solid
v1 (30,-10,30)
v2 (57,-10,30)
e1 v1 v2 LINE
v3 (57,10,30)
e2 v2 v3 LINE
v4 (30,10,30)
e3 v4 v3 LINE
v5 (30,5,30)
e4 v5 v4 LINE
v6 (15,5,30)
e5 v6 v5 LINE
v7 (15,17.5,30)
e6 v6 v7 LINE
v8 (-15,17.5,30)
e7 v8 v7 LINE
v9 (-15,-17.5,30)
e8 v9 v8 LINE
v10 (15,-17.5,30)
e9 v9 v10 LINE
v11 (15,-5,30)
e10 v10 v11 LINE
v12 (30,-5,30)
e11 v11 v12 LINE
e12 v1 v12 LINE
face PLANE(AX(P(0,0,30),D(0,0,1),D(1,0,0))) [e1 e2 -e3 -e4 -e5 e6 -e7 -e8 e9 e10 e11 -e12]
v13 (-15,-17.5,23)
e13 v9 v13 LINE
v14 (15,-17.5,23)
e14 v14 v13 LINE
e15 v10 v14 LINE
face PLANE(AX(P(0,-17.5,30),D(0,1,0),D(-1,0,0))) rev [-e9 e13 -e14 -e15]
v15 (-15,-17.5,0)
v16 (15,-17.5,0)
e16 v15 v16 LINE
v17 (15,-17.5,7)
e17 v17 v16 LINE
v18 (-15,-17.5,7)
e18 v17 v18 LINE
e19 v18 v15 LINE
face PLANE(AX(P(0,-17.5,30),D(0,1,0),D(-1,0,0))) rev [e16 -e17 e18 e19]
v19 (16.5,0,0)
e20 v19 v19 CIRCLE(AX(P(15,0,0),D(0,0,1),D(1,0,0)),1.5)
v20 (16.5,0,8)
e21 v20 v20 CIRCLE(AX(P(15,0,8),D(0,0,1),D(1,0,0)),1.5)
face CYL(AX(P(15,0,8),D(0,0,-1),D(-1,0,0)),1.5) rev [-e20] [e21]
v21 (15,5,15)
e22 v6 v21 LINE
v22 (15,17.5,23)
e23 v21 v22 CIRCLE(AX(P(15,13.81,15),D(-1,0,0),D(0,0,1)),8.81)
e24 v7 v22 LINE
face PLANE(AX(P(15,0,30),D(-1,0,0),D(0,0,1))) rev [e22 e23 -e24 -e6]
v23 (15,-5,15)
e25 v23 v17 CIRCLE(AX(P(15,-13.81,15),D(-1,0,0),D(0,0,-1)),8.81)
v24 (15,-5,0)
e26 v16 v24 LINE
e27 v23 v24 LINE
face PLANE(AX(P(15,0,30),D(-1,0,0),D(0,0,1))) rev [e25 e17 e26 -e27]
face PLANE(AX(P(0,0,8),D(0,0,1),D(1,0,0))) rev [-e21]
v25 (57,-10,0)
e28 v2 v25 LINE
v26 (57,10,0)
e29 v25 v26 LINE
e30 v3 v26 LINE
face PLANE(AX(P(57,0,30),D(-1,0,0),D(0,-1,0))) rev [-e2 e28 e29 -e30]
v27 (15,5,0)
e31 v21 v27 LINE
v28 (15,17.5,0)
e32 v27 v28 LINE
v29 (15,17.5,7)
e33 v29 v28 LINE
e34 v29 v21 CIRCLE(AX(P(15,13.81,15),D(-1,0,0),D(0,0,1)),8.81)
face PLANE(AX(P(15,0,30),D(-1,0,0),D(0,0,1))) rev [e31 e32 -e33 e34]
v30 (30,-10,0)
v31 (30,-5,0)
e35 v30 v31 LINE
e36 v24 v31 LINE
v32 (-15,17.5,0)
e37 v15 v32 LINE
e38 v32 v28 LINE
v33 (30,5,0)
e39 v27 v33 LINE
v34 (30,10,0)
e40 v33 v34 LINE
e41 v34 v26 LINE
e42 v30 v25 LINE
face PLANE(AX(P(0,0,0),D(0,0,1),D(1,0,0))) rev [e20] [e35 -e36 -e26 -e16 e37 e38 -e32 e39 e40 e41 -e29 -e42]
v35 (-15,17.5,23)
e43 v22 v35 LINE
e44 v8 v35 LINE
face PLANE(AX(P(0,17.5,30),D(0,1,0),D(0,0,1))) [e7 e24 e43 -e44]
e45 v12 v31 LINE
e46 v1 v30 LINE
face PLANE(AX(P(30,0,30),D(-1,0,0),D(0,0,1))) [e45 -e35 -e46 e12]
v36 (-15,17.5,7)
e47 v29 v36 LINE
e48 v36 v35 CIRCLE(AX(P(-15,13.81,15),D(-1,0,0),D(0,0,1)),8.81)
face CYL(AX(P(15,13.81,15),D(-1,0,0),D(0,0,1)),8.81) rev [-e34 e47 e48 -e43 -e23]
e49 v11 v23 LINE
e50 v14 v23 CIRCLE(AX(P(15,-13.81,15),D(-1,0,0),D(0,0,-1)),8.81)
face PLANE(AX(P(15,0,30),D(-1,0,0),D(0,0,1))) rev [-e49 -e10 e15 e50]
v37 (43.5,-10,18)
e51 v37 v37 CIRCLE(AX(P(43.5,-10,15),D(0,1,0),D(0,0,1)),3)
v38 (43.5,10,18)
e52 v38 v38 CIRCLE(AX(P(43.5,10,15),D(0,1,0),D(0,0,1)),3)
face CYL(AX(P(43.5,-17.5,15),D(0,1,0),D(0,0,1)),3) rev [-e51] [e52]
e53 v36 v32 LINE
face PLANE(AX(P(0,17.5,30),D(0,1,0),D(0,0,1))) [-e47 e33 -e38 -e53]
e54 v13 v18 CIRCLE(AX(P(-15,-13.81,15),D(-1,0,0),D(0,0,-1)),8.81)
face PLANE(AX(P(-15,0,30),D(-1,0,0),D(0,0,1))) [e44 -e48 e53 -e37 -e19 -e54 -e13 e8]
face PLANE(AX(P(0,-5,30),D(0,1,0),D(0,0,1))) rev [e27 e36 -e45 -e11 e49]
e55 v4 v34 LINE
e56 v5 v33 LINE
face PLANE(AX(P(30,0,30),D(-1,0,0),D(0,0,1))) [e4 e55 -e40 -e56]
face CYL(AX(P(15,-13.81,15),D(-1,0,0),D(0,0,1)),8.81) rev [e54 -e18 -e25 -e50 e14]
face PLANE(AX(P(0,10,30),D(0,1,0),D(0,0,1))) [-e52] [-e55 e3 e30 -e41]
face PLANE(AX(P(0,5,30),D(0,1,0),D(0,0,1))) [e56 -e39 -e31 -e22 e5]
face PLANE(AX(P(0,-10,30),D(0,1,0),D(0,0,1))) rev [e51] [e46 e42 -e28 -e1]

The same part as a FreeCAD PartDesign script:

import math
import FreeCAD as App
import Part
import Sketcher


def add_polygon(sketch, points):
    """Adds a closed chain of lines whose ends are joined by coincident constraints."""
    first, n = sketch.GeometryCount, len(points)
    for a, b in zip(points, points[1:] + points[:1]):
        sketch.addGeometry(Part.LineSegment(App.Vector(*a, 0), App.Vector(*b, 0)), False)
    for i in range(n):
        sketch.addConstraint(Sketcher.Constraint("Coincident", first + i, 2, first + (i + 1) % n, 1))

doc = App.newDocument("Part")
body = doc.addObject("PartDesign::Body", "Body")

sketch1 = doc.addObject("Sketcher::SketchObject", "Sketch")
body.addObject(sketch1)
sketch1.AttachmentSupport = (doc.XY_Plane, [""])
sketch1.MapMode = "FlatFace"
add_polygon(sketch1, [(-15, 17.5), (-15, -17.5), (15, -17.5), (15, -5), (30, -5), (30, -10), (57, -10), (57, 10), (30, 10), (30, 5), (15, 5), (15, 17.5)])
sketch1.addConstraint(Sketcher.Constraint("Vertical", 0))
sketch1.addConstraint(Sketcher.Constraint("Horizontal", 1))
sketch1.addConstraint(Sketcher.Constraint("Vertical", 2))
sketch1.addConstraint(Sketcher.Constraint("Horizontal", 3))
sketch1.addConstraint(Sketcher.Constraint("Vertical", 4))
sketch1.addConstraint(Sketcher.Constraint("Horizontal", 5))
sketch1.addConstraint(Sketcher.Constraint("Vertical", 6))
sketch1.addConstraint(Sketcher.Constraint("Horizontal", 7))
sketch1.addConstraint(Sketcher.Constraint("Vertical", 8))
sketch1.addConstraint(Sketcher.Constraint("Horizontal", 9))
sketch1.addConstraint(Sketcher.Constraint("Vertical", 10))
sketch1.addConstraint(Sketcher.Constraint("Horizontal", 11))
sketch1.addConstraint(Sketcher.Constraint("Symmetric", 0, 2, 10, 2, -1, 1))
sketch1.addConstraint(Sketcher.Constraint("Symmetric", 4, 2, 7, 2, -1))
sketch1.addConstraint(Sketcher.Constraint("Symmetric", 2, 2, 9, 2, -1))
sketch1.addConstraint(Sketcher.Constraint("DistanceX", 1, 1, 1, 2, 30.0))
sketch1.addConstraint(Sketcher.Constraint("DistanceX", 3, 1, 3, 2, 15.0))
sketch1.addConstraint(Sketcher.Constraint("DistanceX", 5, 1, 5, 2, 27.0))
sketch1.addConstraint(Sketcher.Constraint("DistanceY", 0, 2, 0, 1, 35.0))
sketch1.addConstraint(Sketcher.Constraint("DistanceY", 4, 2, 4, 1, 5.0))
sketch1.addConstraint(Sketcher.Constraint("DistanceY", 6, 1, 6, 2, 20.0))
pad1 = doc.addObject("PartDesign::Pad", "Pad")
body.addObject(pad1)
pad1.Profile = sketch1
pad1.Length = 30

sketch2 = doc.addObject("Sketcher::SketchObject", "Sketch001")
body.addObject(sketch2)
sketch2.AttachmentSupport = (doc.XY_Plane, [""])
sketch2.MapMode = "FlatFace"
sketch2.addGeometry(Part.ArcOfCircle(Part.Circle(App.Vector(15, 0, 0), App.Vector(0, 0, 1), 1.5), math.radians(90), math.radians(270)), False)
sketch2.addGeometry(Part.ArcOfCircle(Part.Circle(App.Vector(15, 0, 0), App.Vector(0, 0, 1), 1.5), math.radians(-90), math.radians(0)), False)
sketch2.addGeometry(Part.ArcOfCircle(Part.Circle(App.Vector(15, 0, 0), App.Vector(0, 0, 1), 1.5), math.radians(0), math.radians(90)), False)
sketch2.addConstraint(Sketcher.Constraint("Tangent", 0, 2, 1, 1))
sketch2.addConstraint(Sketcher.Constraint("Tangent", 1, 2, 2, 1))
sketch2.addConstraint(Sketcher.Constraint("Tangent", 2, 2, 0, 1))
sketch2.addConstraint(Sketcher.Constraint("Symmetric", 0, 2, 2, 2, -1))
sketch2.addConstraint(Sketcher.Constraint("PointOnObject", 1, 2, -1))
sketch2.addConstraint(Sketcher.Constraint("Vertical", 2, 3, 0, 2))
sketch2.addConstraint(Sketcher.Constraint("Radius", 0, 1.5))
sketch2.addConstraint(Sketcher.Constraint("DistanceX", -1, 1, 0, 3, 15.0))
pocket1 = doc.addObject("PartDesign::Pocket", "Pocket")
body.addObject(pocket1)
pocket1.Profile = sketch2
pocket1.Length = 8
pocket1.Reversed = True

sketch3 = doc.addObject("Sketcher::SketchObject", "Sketch002")
body.addObject(sketch3)
sketch3.AttachmentSupport = (doc.XZ_Plane, [""])
sketch3.MapMode = "FlatFace"
sketch3.AttachmentOffset = App.Placement(App.Vector(0, 0, -10), App.Rotation())
sketch3.addGeometry(Part.Circle(App.Vector(43.5, 15, 0), App.Vector(0, 0, 1), 3), False)
sketch3.addConstraint(Sketcher.Constraint("Diameter", 0, 6.0))
sketch3.addConstraint(Sketcher.Constraint("DistanceY", -1, 1, 0, 3, 15.0))
sketch3.addConstraint(Sketcher.Constraint("DistanceX", -1, 1, 0, 3, 43.5))
pocket2 = doc.addObject("PartDesign::Pocket", "Pocket001")
body.addObject(pocket2)
pocket2.Profile = sketch3
pocket2.Type = "ThroughAll"
pocket2.Reversed = True

sketch4 = doc.addObject("Sketcher::SketchObject", "Sketch003")
body.addObject(sketch4)
sketch4.AttachmentSupport = (doc.YZ_Plane, [""])
sketch4.MapMode = "FlatFace"
sketch4.AttachmentOffset = App.Placement(App.Vector(0, 0, -15), App.Rotation())
sketch4.addGeometry(Part.LineSegment(App.Vector(-17.5, 7, 0), App.Vector(-17.5, 23, 0)), False)
sketch4.addGeometry(Part.ArcOfCircle(Part.Circle(App.Vector(-13.81, 15, 0), App.Vector(0, 0, 1), 8.81), math.radians(-114.761514), math.radians(114.761514)), False)
sketch4.addGeometry(Part.LineSegment(App.Vector(17.5, 23, 0), App.Vector(17.5, 7, 0)), False)
sketch4.addGeometry(Part.ArcOfCircle(Part.Circle(App.Vector(13.81, 15, 0), App.Vector(0, 0, 1), 8.81), math.radians(65.238486), math.radians(294.761514)), False)
sketch4.addConstraint(Sketcher.Constraint("Coincident", 0, 1, 1, 1))
sketch4.addConstraint(Sketcher.Constraint("Coincident", 1, 2, 0, 2))
sketch4.addConstraint(Sketcher.Constraint("Coincident", 2, 1, 3, 1))
sketch4.addConstraint(Sketcher.Constraint("Coincident", 3, 2, 2, 2))
sketch4.addConstraint(Sketcher.Constraint("Vertical", 0))
sketch4.addConstraint(Sketcher.Constraint("Vertical", 2))
sketch4.addConstraint(Sketcher.Constraint("Equal", 1, 3))
sketch4.addConstraint(Sketcher.Constraint("Symmetric", 1, 3, 3, 3, -2))
sketch4.addConstraint(Sketcher.Constraint("Horizontal", 1, 2, 2, 1))
sketch4.addConstraint(Sketcher.Constraint("DistanceY", 0, 1, 0, 2, 16.0))
sketch4.addConstraint(Sketcher.Constraint("Radius", 1, 8.81))
sketch4.addConstraint(Sketcher.Constraint("DistanceY", -1, 1, 1, 3, 15.0))
sketch4.addConstraint(Sketcher.Constraint("DistanceX", 1, 2, 2, 1, 35.0))
pocket3 = doc.addObject("PartDesign::Pocket", "Pocket002")
body.addObject(pocket3)
pocket3.Profile = sketch4
pocket3.Length = 30
pocket3.Reversed = True

doc.recompute()
